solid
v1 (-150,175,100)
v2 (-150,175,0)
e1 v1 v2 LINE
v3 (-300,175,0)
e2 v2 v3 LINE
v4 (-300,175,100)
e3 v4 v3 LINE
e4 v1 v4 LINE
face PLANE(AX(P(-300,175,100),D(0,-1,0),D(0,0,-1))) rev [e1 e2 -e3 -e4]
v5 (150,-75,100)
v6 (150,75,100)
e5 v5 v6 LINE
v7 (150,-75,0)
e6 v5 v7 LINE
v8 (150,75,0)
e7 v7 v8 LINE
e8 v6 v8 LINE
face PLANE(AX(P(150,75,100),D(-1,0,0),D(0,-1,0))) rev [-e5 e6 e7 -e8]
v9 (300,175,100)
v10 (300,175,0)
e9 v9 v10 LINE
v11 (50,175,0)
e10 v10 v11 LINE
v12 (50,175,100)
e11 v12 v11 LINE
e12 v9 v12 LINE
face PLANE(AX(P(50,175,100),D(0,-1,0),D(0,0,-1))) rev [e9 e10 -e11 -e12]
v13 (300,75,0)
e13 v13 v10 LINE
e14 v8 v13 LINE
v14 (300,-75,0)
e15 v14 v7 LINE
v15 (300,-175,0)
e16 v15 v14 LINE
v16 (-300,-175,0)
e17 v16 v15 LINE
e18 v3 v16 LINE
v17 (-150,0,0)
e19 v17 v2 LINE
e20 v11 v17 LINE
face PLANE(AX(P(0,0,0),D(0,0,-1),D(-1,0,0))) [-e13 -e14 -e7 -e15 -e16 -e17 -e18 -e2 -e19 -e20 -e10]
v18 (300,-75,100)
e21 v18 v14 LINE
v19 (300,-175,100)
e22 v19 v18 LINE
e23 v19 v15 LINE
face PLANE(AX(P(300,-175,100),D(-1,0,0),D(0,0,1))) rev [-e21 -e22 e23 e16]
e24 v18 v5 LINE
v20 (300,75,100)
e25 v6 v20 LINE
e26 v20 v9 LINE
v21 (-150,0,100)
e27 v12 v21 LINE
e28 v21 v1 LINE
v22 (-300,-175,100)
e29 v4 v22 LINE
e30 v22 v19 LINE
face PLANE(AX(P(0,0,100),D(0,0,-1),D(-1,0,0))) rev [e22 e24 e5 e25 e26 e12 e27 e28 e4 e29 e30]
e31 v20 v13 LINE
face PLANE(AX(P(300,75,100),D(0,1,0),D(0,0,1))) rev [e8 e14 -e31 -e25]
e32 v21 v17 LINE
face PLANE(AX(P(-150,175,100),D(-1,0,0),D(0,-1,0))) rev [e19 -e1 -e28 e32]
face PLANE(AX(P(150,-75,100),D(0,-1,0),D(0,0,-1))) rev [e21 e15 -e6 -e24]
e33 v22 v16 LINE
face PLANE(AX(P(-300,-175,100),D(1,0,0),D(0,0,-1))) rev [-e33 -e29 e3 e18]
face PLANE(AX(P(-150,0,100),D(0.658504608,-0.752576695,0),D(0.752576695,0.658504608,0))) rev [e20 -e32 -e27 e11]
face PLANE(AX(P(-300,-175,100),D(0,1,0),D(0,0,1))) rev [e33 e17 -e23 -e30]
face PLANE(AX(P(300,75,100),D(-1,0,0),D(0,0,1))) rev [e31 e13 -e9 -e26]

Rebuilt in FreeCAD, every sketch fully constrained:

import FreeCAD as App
import Part
import Sketcher

V = App.Vector
Q = App.Units.Quantity

doc = App.newDocument("Part")
body = doc.addObject("PartDesign::Body", "Body")

# Sketch on XY plane
sketch1 = body.newObject("Sketcher::SketchObject", "Sketch")
sketch1.AttachmentSupport = (doc.getObject("XY_Plane"), [""])
sketch1.MapMode = "FlatFace"
sketch1.addGeometry([
    Part.LineSegment(V(150, 75, 0), V(300, 75, 0)),  # 0
    Part.LineSegment(V(300, 75, 0), V(300, 175, 0)),  # 1
    Part.LineSegment(V(300, 175, 0), V(50, 175, 0)),  # 2
    Part.LineSegment(V(50, 175, 0), V(-150, 0, 0)),  # 3
    Part.LineSegment(V(-150, 0, 0), V(-150, 175, 0)),  # 4
    Part.LineSegment(V(-150, 175, 0), V(-300, 175, 0)),  # 5
    Part.LineSegment(V(-300, 175, 0), V(-300, -175, 0)),  # 6
    Part.LineSegment(V(-300, -175, 0), V(300, -175, 0)),  # 7
    Part.LineSegment(V(300, -175, 0), V(300, -75, 0)),  # 8
    Part.LineSegment(V(300, -75, 0), V(150, -75, 0)),  # 9
    Part.LineSegment(V(150, -75, 0), V(150, 75, 0)),  # 10
], False)
sketch1.addConstraint([
    Sketcher.Constraint("Coincident", 0, 2, 1, 1),
    Sketcher.Constraint("Coincident", 1, 2, 2, 1),
    Sketcher.Constraint("Coincident", 2, 2, 3, 1),
    Sketcher.Constraint("Coincident", 3, 2, 4, 1),
    Sketcher.Constraint("Coincident", 4, 2, 5, 1),
    Sketcher.Constraint("Coincident", 5, 2, 6, 1),
    Sketcher.Constraint("Coincident", 6, 2, 7, 1),
    Sketcher.Constraint("Coincident", 7, 2, 8, 1),
    Sketcher.Constraint("Coincident", 8, 2, 9, 1),
    Sketcher.Constraint("Coincident", 9, 2, 10, 1),
    Sketcher.Constraint("Coincident", 10, 2, 0, 1),
    Sketcher.Constraint("Horizontal", 0),
    Sketcher.Constraint("Vertical", 1),
    Sketcher.Constraint("Horizontal", 2),
    Sketcher.Constraint("Vertical", 4),
    Sketcher.Constraint("Horizontal", 5),
    Sketcher.Constraint("Vertical", 6),
    Sketcher.Constraint("Horizontal", 7),
    Sketcher.Constraint("Vertical", 8),
    Sketcher.Constraint("Horizontal", 9),
    Sketcher.Constraint("Vertical", 10),
    Sketcher.Constraint("Symmetric", 1, 2, 6, 2, -1, 1),
    Sketcher.Constraint("Symmetric", 5, 2, 7, 2, -1, 1),
    Sketcher.Constraint("PointOnObject", 3, 2, -1),
    Sketcher.Constraint("Equal", 0, 5),
    Sketcher.Constraint("Equal", 1, 8),
    Sketcher.Constraint("Equal", 9, 10),
    Sketcher.Constraint("DistanceX", 0, 1, 0, 2, Q("150 mm")),
    Sketcher.Constraint("DistanceX", 2, 2, 2, 1, Q("250 mm")),
    Sketcher.Constraint("DistanceX", 7, 1, 7, 2, Q("600 mm")),
    Sketcher.Constraint("DistanceY", 1, 1, 1, 2, Q("100 mm")),
])
pad1 = body.newObject("PartDesign::Pad", "Pad")
pad1.Profile = sketch1
pad1.Length = 100

doc.recompute()
